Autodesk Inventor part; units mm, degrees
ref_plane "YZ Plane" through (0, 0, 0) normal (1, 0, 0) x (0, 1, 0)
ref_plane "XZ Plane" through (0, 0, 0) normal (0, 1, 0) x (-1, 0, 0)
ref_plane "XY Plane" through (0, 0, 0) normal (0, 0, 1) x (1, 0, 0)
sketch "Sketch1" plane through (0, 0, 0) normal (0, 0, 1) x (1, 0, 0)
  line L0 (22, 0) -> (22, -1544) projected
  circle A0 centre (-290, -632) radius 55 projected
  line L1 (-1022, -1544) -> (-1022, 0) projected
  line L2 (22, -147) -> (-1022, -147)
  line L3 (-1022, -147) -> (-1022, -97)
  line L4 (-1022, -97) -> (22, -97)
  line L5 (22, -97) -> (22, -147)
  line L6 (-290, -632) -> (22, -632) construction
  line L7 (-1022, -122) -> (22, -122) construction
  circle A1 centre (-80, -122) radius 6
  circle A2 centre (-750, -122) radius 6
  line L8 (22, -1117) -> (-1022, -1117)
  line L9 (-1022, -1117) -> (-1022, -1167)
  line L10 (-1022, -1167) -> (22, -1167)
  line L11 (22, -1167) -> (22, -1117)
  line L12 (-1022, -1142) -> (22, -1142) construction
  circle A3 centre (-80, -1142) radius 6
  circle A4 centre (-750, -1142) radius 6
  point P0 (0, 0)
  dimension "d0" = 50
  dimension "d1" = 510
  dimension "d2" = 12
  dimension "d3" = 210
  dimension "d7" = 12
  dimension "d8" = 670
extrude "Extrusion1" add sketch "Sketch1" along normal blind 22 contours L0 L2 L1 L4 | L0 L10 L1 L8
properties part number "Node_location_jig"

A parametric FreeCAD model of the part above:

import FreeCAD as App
import Part
import Sketcher
from FreeCAD import Vector
Q = App.Units.Quantity

doc = App.newDocument("Part")
params = doc.addObject("Spreadsheet::Sheet", "Params")
for row, (alias, value) in enumerate([
    ("sketch1_diameter", "12 mm"),
    ("sketch1_height", "50 mm"),
    ("sketch1_width", "1044 mm"),
    ("pad1_length", "22 mm"),
], start=1):
    params.set(f"A{row}", alias)
    params.set(f"B{row}", "=" + value)
    params.setAlias(f"B{row}", alias)

body = doc.addObject("PartDesign::Body", "Body")
body.AllowCompound = True

# Sketch on XY plane
sketch1 = body.newObject("Sketcher::SketchObject", "Sketch")
sketch1.AttachmentSupport = (doc.getObject("XY_Plane"), [""])
sketch1.MapMode = "FlatFace"
sketch1.addGeometry([
    Part.LineSegment(Vector(22, -147, 0), Vector(22, -97, 0)),  # 0
    Part.LineSegment(Vector(22, -97, 0), Vector(-1022, -97, 0)),  # 1
    Part.LineSegment(Vector(-1022, -97, 0), Vector(-1022, -147, 0)),  # 2
    Part.LineSegment(Vector(-1022, -147, 0), Vector(22, -147, 0)),  # 3
    Part.Circle(Vector(-750, -122, 0), Vector(0, 0, 1), 6),  # 4
    Part.Circle(Vector(-80, -122, 0), Vector(0, 0, 1), 6),  # 5
    Part.LineSegment(Vector(22, -1167, 0), Vector(22, -1117, 0)),  # 6
    Part.LineSegment(Vector(22, -1117, 0), Vector(-1022, -1117, 0)),  # 7
    Part.LineSegment(Vector(-1022, -1117, 0), Vector(-1022, -1167, 0)),  # 8
    Part.LineSegment(Vector(-1022, -1167, 0), Vector(22, -1167, 0)),  # 9
    Part.Circle(Vector(-750, -1142, 0), Vector(0, 0, 1), 6),  # 10
    Part.Circle(Vector(-80, -1142, 0), Vector(0, 0, 1), 6),  # 11
], False)
sketch1.addConstraint([
    Sketcher.Constraint("Coincident", 0, 2, 1, 1),
    Sketcher.Constraint("Coincident", 1, 2, 2, 1),
    Sketcher.Constraint("Coincident", 2, 2, 3, 1),
    Sketcher.Constraint("Coincident", 3, 2, 0, 1),
    Sketcher.Constraint("Coincident", 6, 2, 7, 1),
    Sketcher.Constraint("Coincident", 7, 2, 8, 1),
    Sketcher.Constraint("Coincident", 8, 2, 9, 1),
    Sketcher.Constraint("Coincident", 9, 2, 6, 1),
    Sketcher.Constraint("Vertical", 0),
    Sketcher.Constraint("Horizontal", 1),
    Sketcher.Constraint("Vertical", 2),
    Sketcher.Constraint("Horizontal", 3),
    Sketcher.Constraint("Vertical", 6),
    Sketcher.Constraint("Horizontal", 7),
    Sketcher.Constraint("Vertical", 8),
    Sketcher.Constraint("Horizontal", 9),
    Sketcher.Constraint("Equal", 4, 5),
    Sketcher.Constraint("Equal", 5, 10),
    Sketcher.Constraint("Equal", 10, 11),
    Sketcher.Constraint("Horizontal", 4, 3, 5, 3),
    Sketcher.Constraint("Horizontal", 10, 3, 11, 3),
    Sketcher.Constraint("Vertical", 4, 3, 10, 3),
    Sketcher.Constraint("Vertical", 5, 3, 11, 3),
    Sketcher.Constraint("Vertical", 3, 2, 6, 2),
    Sketcher.Constraint("Vertical", 2, 2, 7, 2),
    Sketcher.Constraint("Equal", 2, 6),
    Sketcher.Constraint("Diameter", 4, Q("12 mm")),
    Sketcher.Constraint("DistanceY", 0, 1, 0, 2, Q("50 mm")),
    Sketcher.Constraint("DistanceX", 4, 3, 5, 3, Q("670 mm")),
    Sketcher.Constraint("DistanceX", 1, 2, 1, 1, Q("1044 mm")),
    Sketcher.Constraint("DistanceX", 4, 3, -1, 1, Q("750 mm")),
    Sketcher.Constraint("DistanceY", 4, 3, -1, 1, Q("122 mm")),
    Sketcher.Constraint("DistanceY", 10, 3, -1, 1, Q("1142 mm")),
    Sketcher.Constraint("DistanceX", -1, 1, 0, 2, Q("22 mm")),
    Sketcher.Constraint("DistanceY", 0, 2, -1, 1, Q("97 mm")),
    Sketcher.Constraint("DistanceY", 6, 2, -1, 1, Q("1117 mm")),
])
sketch1.setExpression("Constraints[26]", "Params.sketch1_diameter")
sketch1.setExpression("Constraints[27]", "Params.sketch1_height")
sketch1.setExpression("Constraints[29]", "Params.sketch1_width")
pad1 = body.newObject("PartDesign::Pad", "Pad")
pad1.Profile = sketch1
pad1.setExpression("Length", "Params.pad1_length")

doc.recompute()
